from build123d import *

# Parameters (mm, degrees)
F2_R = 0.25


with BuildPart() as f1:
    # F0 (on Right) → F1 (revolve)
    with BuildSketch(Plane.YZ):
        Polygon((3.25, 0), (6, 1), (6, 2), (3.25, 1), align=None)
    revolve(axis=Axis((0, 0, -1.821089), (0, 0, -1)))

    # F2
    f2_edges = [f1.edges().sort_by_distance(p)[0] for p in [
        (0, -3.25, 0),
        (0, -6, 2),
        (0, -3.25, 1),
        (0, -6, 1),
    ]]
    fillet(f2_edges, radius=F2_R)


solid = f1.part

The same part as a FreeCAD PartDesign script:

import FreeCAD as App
import Part
import Sketcher
from FreeCAD import Vector
Q = App.Units.Quantity


def edges_at(feature, points):
    """Names of the edges that pass closest to the given points."""
    edges = feature.Shape.Edges
    near = lambda p: min(range(len(edges)), key=lambda i: edges[i].distToShape(Part.Vertex(*p))[0])
    return sorted({f"Edge{near(p) + 1}" for p in points})


def add_polygon(sketch, points):
    """Adds a closed chain of lines whose ends are joined by coincident constraints."""
    first, n = sketch.GeometryCount, len(points)
    for a, b in zip(points, points[1:] + points[:1]):
        sketch.addGeometry(Part.LineSegment(App.Vector(*a, 0), App.Vector(*b, 0)), False)
    for i in range(n):
        sketch.addConstraint(Sketcher.Constraint("Coincident", first + i, 2, first + (i + 1) % n, 1))

doc = App.newDocument("Part")
body = doc.addObject("PartDesign::Body", "Body")

sketch1 = body.newObject("Sketcher::SketchObject", "Sketch")
sketch1.AttachmentSupport = (doc.getObject("YZ_Plane"), [""])
sketch1.MapMode = "FlatFace"
add_polygon(sketch1, [(3.2, 0), (6, 1), (6, 2), (3.2, 1)])
sketch1.addConstraint([
    Sketcher.Constraint("Vertical", 1),
    Sketcher.Constraint("Vertical", 3),
    Sketcher.Constraint("PointOnObject", 3, 2, -1),
    Sketcher.Constraint("Parallel", 0, 2),
    Sketcher.Constraint("Horizontal", 0, 2, 2, 2),
    Sketcher.Constraint("DistanceY", 1, 1, 1, 2, Q("1 mm")),
    Sketcher.Constraint("DistanceX", -1, 1, 0, 2, Q("6 mm")),
    Sketcher.Constraint("DistanceX", -1, 1, 2, 2, Q("3.25 mm")),
])
revolution = body.newObject("PartDesign::Revolution", "Revolution")
revolution.Profile = sketch1
revolution.ReferenceAxis = (sketch1, ["V_Axis"])
revolution.Angle = 360
doc.recompute()

fillet = body.newObject("PartDesign::Fillet", "Fillet")
fillet.Base = (revolution, edges_at(revolution, [
    (0, -3.25, 0),
    (0, -6, 2),
    (0, -3.25, 1),
    (0, -6, 1),
]))
fillet.Radius = 0.25

doc.recompute()
